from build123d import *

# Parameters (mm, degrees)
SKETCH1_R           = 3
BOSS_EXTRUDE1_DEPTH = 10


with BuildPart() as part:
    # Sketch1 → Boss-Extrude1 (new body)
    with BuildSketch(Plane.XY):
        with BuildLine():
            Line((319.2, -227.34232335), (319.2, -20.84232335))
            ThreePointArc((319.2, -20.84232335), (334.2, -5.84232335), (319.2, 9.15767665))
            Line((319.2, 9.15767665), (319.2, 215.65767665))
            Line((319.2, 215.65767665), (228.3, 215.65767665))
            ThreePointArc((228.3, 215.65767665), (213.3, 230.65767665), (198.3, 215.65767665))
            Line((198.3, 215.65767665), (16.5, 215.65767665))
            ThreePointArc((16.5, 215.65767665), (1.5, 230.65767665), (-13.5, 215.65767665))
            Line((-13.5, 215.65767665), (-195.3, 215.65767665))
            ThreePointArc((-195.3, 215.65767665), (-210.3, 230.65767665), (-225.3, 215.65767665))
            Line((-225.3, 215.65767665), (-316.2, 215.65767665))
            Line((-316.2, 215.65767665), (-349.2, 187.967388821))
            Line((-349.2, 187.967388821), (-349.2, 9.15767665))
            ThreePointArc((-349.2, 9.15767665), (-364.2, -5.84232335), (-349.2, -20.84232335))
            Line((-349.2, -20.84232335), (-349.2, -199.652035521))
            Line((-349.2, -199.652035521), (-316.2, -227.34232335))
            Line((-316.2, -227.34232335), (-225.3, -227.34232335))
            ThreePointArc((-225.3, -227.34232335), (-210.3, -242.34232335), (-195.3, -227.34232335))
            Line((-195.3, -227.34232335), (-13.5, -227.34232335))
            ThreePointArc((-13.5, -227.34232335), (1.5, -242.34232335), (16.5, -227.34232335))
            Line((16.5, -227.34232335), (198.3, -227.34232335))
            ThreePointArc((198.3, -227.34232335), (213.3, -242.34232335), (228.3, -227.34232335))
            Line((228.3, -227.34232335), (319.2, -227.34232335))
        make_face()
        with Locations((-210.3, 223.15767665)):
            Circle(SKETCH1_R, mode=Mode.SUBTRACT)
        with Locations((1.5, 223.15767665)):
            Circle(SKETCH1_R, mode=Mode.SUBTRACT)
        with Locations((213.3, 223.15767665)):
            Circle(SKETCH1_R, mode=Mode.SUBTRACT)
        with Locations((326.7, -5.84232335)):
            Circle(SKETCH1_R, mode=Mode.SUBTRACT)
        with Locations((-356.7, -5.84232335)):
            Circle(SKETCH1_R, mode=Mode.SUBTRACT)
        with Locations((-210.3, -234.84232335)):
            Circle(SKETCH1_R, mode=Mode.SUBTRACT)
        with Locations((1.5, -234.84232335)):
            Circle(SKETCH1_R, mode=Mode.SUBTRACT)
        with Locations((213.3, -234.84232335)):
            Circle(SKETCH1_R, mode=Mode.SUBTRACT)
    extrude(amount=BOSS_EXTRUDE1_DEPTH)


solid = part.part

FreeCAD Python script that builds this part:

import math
import FreeCAD as App
import Part
import Sketcher
Q = App.Units.Quantity

doc = App.newDocument("Part")
params = doc.addObject("Spreadsheet::Sheet", "Params")
for row, (alias, value) in enumerate([
    ("sketch1_diameter", "6 mm"),
    ("sketch1_radius", "15 mm"),
    ("sketch1_width", "90.9 mm"),
    ("sketch1_width2", "181.8 mm"),
    ("sketch1_height", "206.5 mm"),
    ("pad1_length", "10 mm"),
], start=1):
    params.set(f"A{row}", alias)
    params.set(f"B{row}", "=" + value)
    params.setAlias(f"B{row}", alias)

body = doc.addObject("PartDesign::Body", "Body")

# Sketch on XY plane
sketch1 = doc.addObject("Sketcher::SketchObject", "Sketch")
body.addObject(sketch1)
sketch1.AttachmentSupport = (doc.XY_Plane, [""])
sketch1.MapMode = "FlatFace"
sketch1.addGeometry([
    Part.LineSegment(App.Vector(319.2, -227.3, 0), App.Vector(319.2, -20.8, 0)),  # 0
    Part.ArcOfCircle(Part.Circle(App.Vector(319.2, -5.8, 0), App.Vector(0, 0, 1), 15), math.radians(-90), math.radians(90)),  # 1
    Part.LineSegment(App.Vector(319.2, 9.2, 0), App.Vector(319.2, 215.7, 0)),  # 2
    Part.LineSegment(App.Vector(319.2, 215.7, 0), App.Vector(228.3, 215.7, 0)),  # 3
    Part.ArcOfCircle(Part.Circle(App.Vector(213.3, 215.7, 0), App.Vector(0, 0, 1), 15), math.radians(0), math.radians(180)),  # 4
    Part.LineSegment(App.Vector(198.3, 215.7, 0), App.Vector(16.5, 215.7, 0)),  # 5
    Part.ArcOfCircle(Part.Circle(App.Vector(1.5, 215.7, 0), App.Vector(0, 0, 1), 15), math.radians(0), math.radians(180)),  # 6
    Part.LineSegment(App.Vector(-13.5, 215.7, 0), App.Vector(-195.3, 215.7, 0)),  # 7
    Part.ArcOfCircle(Part.Circle(App.Vector(-210.3, 215.7, 0), App.Vector(0, 0, 1), 15), math.radians(0), math.radians(180)),  # 8
    Part.LineSegment(App.Vector(-225.3, 215.7, 0), App.Vector(-316.2, 215.7, 0)),  # 9
    Part.LineSegment(App.Vector(-316.2, 215.7, 0), App.Vector(-349.2, 188, 0)),  # 10
    Part.LineSegment(App.Vector(-349.2, 188, 0), App.Vector(-349.2, 9.2, 0)),  # 11
    Part.ArcOfCircle(Part.Circle(App.Vector(-349.2, -5.8, 0), App.Vector(0, 0, 1), 15), math.radians(90), math.radians(270)),  # 12
    Part.LineSegment(App.Vector(-349.2, -20.8, 0), App.Vector(-349.2, -199.7, 0)),  # 13
    Part.LineSegment(App.Vector(-349.2, -199.7, 0), App.Vector(-316.2, -227.3, 0)),  # 14
    Part.LineSegment(App.Vector(-316.2, -227.3, 0), App.Vector(-225.3, -227.3, 0)),  # 15
    Part.ArcOfCircle(Part.Circle(App.Vector(-210.3, -227.3, 0), App.Vector(0, 0, 1), 15), math.radians(180), math.radians(360)),  # 16
    Part.LineSegment(App.Vector(-195.3, -227.3, 0), App.Vector(-13.5, -227.3, 0)),  # 17
    Part.ArcOfCircle(Part.Circle(App.Vector(1.5, -227.3, 0), App.Vector(0, 0, 1), 15), math.radians(180), math.radians(360)),  # 18
    Part.LineSegment(App.Vector(16.5, -227.3, 0), App.Vector(198.3, -227.3, 0)),  # 19
    Part.ArcOfCircle(Part.Circle(App.Vector(213.3, -227.3, 0), App.Vector(0, 0, 1), 15), math.radians(180), math.radians(360)),  # 20
    Part.LineSegment(App.Vector(228.3, -227.3, 0), App.Vector(319.2, -227.3, 0)),  # 21
    Part.Circle(App.Vector(-210.3, -234.8, 0), App.Vector(0, 0, 1), 3),  # 22
    Part.Circle(App.Vector(-356.7, -5.8, 0), App.Vector(0, 0, 1), 3),  # 23
    Part.Circle(App.Vector(1.5, -234.8, 0), App.Vector(0, 0, 1), 3),  # 24
    Part.Circle(App.Vector(213.3, -234.8, 0), App.Vector(0, 0, 1), 3),  # 25
    Part.Circle(App.Vector(326.7, -5.8, 0), App.Vector(0, 0, 1), 3),  # 26
    Part.Circle(App.Vector(-210.3, 223.2, 0), App.Vector(0, 0, 1), 3),  # 27
    Part.Circle(App.Vector(1.5, 223.2, 0), App.Vector(0, 0, 1), 3),  # 28
    Part.Circle(App.Vector(213.3, 223.2, 0), App.Vector(0, 0, 1), 3),  # 29
], False)
sketch1.addConstraint([
    Sketcher.Constraint("Coincident", 0, 2, 1, 1),
    Sketcher.Constraint("Coincident", 1, 2, 2, 1),
    Sketcher.Constraint("Coincident", 2, 2, 3, 1),
    Sketcher.Constraint("Coincident", 3, 2, 4, 1),
    Sketcher.Constraint("Coincident", 4, 2, 5, 1),
    Sketcher.Constraint("Coincident", 5, 2, 6, 1),
    Sketcher.Constraint("Coincident", 6, 2, 7, 1),
    Sketcher.Constraint("Coincident", 7, 2, 8, 1),
    Sketcher.Constraint("Coincident", 8, 2, 9, 1),
    Sketcher.Constraint("Coincident", 9, 2, 10, 1),
    Sketcher.Constraint("Coincident", 10, 2, 11, 1),
    Sketcher.Constraint("Coincident", 11, 2, 12, 1),
    Sketcher.Constraint("Coincident", 12, 2, 13, 1),
    Sketcher.Constraint("Coincident", 13, 2, 14, 1),
    Sketcher.Constraint("Coincident", 14, 2, 15, 1),
    Sketcher.Constraint("Coincident", 15, 2, 16, 1),
    Sketcher.Constraint("Coincident", 16, 2, 17, 1),
    Sketcher.Constraint("Coincident", 17, 2, 18, 1),
    Sketcher.Constraint("Coincident", 18, 2, 19, 1),
    Sketcher.Constraint("Coincident", 19, 2, 20, 1),
    Sketcher.Constraint("Coincident", 20, 2, 21, 1),
    Sketcher.Constraint("Coincident", 21, 2, 0, 1),
    Sketcher.Constraint("Vertical", 0),
    Sketcher.Constraint("Vertical", 2),
    Sketcher.Constraint("Horizontal", 3),
    Sketcher.Constraint("Horizontal", 5),
    Sketcher.Constraint("Horizontal", 7),
    Sketcher.Constraint("Horizontal", 9),
    Sketcher.Constraint("Vertical", 11),
    Sketcher.Constraint("Vertical", 13),
    Sketcher.Constraint("Horizontal", 15),
    Sketcher.Constraint("Horizontal", 17),
    Sketcher.Constraint("Horizontal", 19),
    Sketcher.Constraint("Horizontal", 21),
    Sketcher.Constraint("Equal", 1, 4),
    Sketcher.Constraint("Equal", 4, 6),
    Sketcher.Constraint("Equal", 6, 8),
    Sketcher.Constraint("Equal", 8, 12),
    Sketcher.Constraint("Equal", 12, 16),
    Sketcher.Constraint("Equal", 16, 18),
    Sketcher.Constraint("Equal", 18, 20),
    Sketcher.Constraint("Equal", 22, 23),
    Sketcher.Constraint("Equal", 23, 24),
    Sketcher.Constraint("Equal", 24, 25),
    Sketcher.Constraint("Equal", 25, 26),
    Sketcher.Constraint("Equal", 26, 27),
    Sketcher.Constraint("Equal", 27, 28),
    Sketcher.Constraint("Equal", 28, 29),
    Sketcher.Constraint("Horizontal", 4, 3, 6, 3),
    Sketcher.Constraint("Horizontal", 6, 3, 8, 3),
    Sketcher.Constraint("Horizontal", 1, 3, 12, 3),
    Sketcher.Constraint("Horizontal", 16, 3, 18, 3),
    Sketcher.Constraint("Horizontal", 18, 3, 20, 3),
    Sketcher.Constraint("Horizontal", 12, 3, 23, 3),
    Sketcher.Constraint("Horizontal", 22, 3, 24, 3),
    Sketcher.Constraint("Horizontal", 24, 3, 25, 3),
    Sketcher.Constraint("Horizontal", 23, 3, 26, 3),
    Sketcher.Constraint("Horizontal", 27, 3, 28, 3),
    Sketcher.Constraint("Horizontal", 28, 3, 29, 3),
    Sketcher.Constraint("Horizontal", 8, 3, 2, 2),
    Sketcher.Constraint("Horizontal", 3, 2, 4, 2),
    Sketcher.Constraint("Horizontal", 5, 2, 6, 2),
    Sketcher.Constraint("Horizontal", 7, 2, 8, 2),
    Sketcher.Constraint("Horizontal", 20, 3, 14, 2),
    Sketcher.Constraint("Horizontal", 15, 2, 16, 2),
    Sketcher.Constraint("Horizontal", 17, 2, 18, 2),
    Sketcher.Constraint("Horizontal", 19, 2, 20, 2),
    Sketcher.Constraint("Vertical", 8, 3, 16, 3),
    Sketcher.Constraint("Vertical", 6, 3, 18, 3),
    Sketcher.Constraint("Vertical", 4, 3, 20, 3),
    Sketcher.Constraint("Vertical", 16, 3, 22, 3),
    Sketcher.Constraint("Vertical", 18, 3, 24, 3),
    Sketcher.Constraint("Vertical", 20, 3, 25, 3),
    Sketcher.Constraint("Vertical", 22, 3, 27, 3),
    Sketcher.Constraint("Vertical", 24, 3, 28, 3),
    Sketcher.Constraint("Vertical", 25, 3, 29, 3),
    Sketcher.Constraint("Vertical", 1, 3, 0, 2),
    Sketcher.Constraint("Vertical", 0, 2, 1, 2),
    Sketcher.Constraint("Vertical", 12, 3, 10, 2),
    Sketcher.Constraint("Vertical", 11, 2, 12, 2),
    Sketcher.Constraint("Vertical", 9, 2, 14, 2),
    Sketcher.Constraint("Equal", 5, 7),
    Sketcher.Constraint("Equal", 3, 9),
    Sketcher.Constraint("Equal", 0, 2),
    Sketcher.Constraint("Equal", 11, 13),
    Sketcher.Constraint("Diameter", 22, Q("6 mm")),
    Sketcher.Constraint("Radius", 1, Q("15 mm")),
    Sketcher.Constraint("Angle", 10, Q("-140 deg")),
    Sketcher.Constraint("DistanceX", 3, 2, 3, 1, Q("90.9 mm")),
    Sketcher.Constraint("DistanceX", 5, 2, 5, 1, Q("181.8 mm")),
    Sketcher.Constraint("DistanceY", 0, 1, 0, 2, Q("206.5 mm")),
    Sketcher.Constraint("DistanceY", 22, 3, 12, 3, Q("229 mm")),
    Sketcher.Constraint("DistanceY", 12, 3, 27, 3, Q("229 mm")),
    Sketcher.Constraint("DistanceX", 12, 3, 9, 2, Q("33 mm")),
    Sketcher.Constraint("DistanceX", -1, 1, 1, 3, Q("319.2 mm")),
    Sketcher.Constraint("DistanceX", 23, 3, -1, 1, Q("356.7 mm")),
    Sketcher.Constraint("DistanceX", -1, 1, 26, 3, Q("326.7 mm")),
    Sketcher.Constraint("DistanceY", -1, 1, 10, 2, Q("187.967389 mm")),
])
sketch1.setExpression("Constraints[85]", "Params.sketch1_diameter")
sketch1.setExpression("Constraints[86]", "Params.sketch1_radius")
sketch1.setExpression("Constraints[88]", "Params.sketch1_width")
sketch1.setExpression("Constraints[89]", "Params.sketch1_width2")
sketch1.setExpression("Constraints[90]", "Params.sketch1_height")
pad1 = doc.addObject("PartDesign::Pad", "Pad")
body.addObject(pad1)
pad1.Profile = sketch1
pad1.setExpression("Length", "Params.pad1_length")

doc.recompute()
